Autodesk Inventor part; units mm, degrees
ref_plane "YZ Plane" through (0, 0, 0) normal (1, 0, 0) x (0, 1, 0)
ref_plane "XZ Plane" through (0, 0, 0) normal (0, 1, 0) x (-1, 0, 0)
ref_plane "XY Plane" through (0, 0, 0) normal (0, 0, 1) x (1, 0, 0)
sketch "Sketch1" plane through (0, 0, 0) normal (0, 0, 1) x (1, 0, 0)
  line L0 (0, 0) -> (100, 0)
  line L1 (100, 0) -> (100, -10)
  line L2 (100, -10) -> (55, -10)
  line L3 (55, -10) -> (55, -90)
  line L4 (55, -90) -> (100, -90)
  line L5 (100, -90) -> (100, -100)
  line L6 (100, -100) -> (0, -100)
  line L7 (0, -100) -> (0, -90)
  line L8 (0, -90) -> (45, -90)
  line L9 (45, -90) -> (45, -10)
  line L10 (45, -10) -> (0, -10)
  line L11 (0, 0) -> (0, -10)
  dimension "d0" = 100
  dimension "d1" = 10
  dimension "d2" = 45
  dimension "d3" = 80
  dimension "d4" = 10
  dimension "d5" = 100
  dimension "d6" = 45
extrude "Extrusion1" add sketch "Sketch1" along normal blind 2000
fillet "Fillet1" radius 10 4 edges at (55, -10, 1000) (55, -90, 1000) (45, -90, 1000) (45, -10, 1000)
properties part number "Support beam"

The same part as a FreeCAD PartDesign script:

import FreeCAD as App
import Part
import Sketcher
from FreeCAD import Vector


def edges_at(feature, points):
    """Names of the edges that pass closest to the given points."""
    edges = feature.Shape.Edges
    near = lambda p: min(range(len(edges)), key=lambda i: edges[i].distToShape(Part.Vertex(*p))[0])
    return sorted({f"Edge{near(p) + 1}" for p in points})

doc = App.newDocument("Part")
body = doc.addObject("PartDesign::Body", "Body")

# Sketch on XY plane
sketch1 = body.newObject("Sketcher::SketchObject", "Sketch")
sketch1.AttachmentSupport = (doc.getObject("XY_Plane"), [""])
sketch1.MapMode = "FlatFace"
sketch1.addGeometry([
    Part.LineSegment(Vector(100, 0, 0), Vector(0, 0, 0)),  # 0
    Part.LineSegment(Vector(0, 0, 0), Vector(0, -10, 0)),  # 1
    Part.LineSegment(Vector(0, -10, 0), Vector(45, -10, 0)),  # 2
    Part.LineSegment(Vector(45, -10, 0), Vector(45, -90, 0)),  # 3
    Part.LineSegment(Vector(45, -90, 0), Vector(0, -90, 0)),  # 4
    Part.LineSegment(Vector(0, -90, 0), Vector(0, -100, 0)),  # 5
    Part.LineSegment(Vector(0, -100, 0), Vector(100, -100, 0)),  # 6
    Part.LineSegment(Vector(100, -100, 0), Vector(100, -90, 0)),  # 7
    Part.LineSegment(Vector(100, -90, 0), Vector(55, -90, 0)),  # 8
    Part.LineSegment(Vector(55, -90, 0), Vector(55, -10, 0)),  # 9
    Part.LineSegment(Vector(55, -10, 0), Vector(100, -10, 0)),  # 10
    Part.LineSegment(Vector(100, -10, 0), Vector(100, 0, 0)),  # 11
], False)
sketch1.addConstraint([
    Sketcher.Constraint("Coincident", 0, 2, 1, 1),
    Sketcher.Constraint("Coincident", 1, 2, 2, 1),
    Sketcher.Constraint("Coincident", 2, 2, 3, 1),
    Sketcher.Constraint("Coincident", 3, 2, 4, 1),
    Sketcher.Constraint("Coincident", 4, 2, 5, 1),
    Sketcher.Constraint("Coincident", 5, 2, 6, 1),
    Sketcher.Constraint("Coincident", 6, 2, 7, 1),
    Sketcher.Constraint("Coincident", 7, 2, 8, 1),
    Sketcher.Constraint("Coincident", 8, 2, 9, 1),
    Sketcher.Constraint("Coincident", 9, 2, 10, 1),
    Sketcher.Constraint("Coincident", 10, 2, 11, 1),
    Sketcher.Constraint("Coincident", 11, 2, 0, 1),
    Sketcher.Constraint("Horizontal", 0),
    Sketcher.Constraint("Vertical", 1),
    Sketcher.Constraint("Horizontal", 2),
    Sketcher.Constraint("Vertical", 3),
    Sketcher.Constraint("Horizontal", 4),
    Sketcher.Constraint("Vertical", 5),
    Sketcher.Constraint("Horizontal", 6),
    Sketcher.Constraint("Vertical", 7),
    Sketcher.Constraint("Horizontal", 8),
    Sketcher.Constraint("Vertical", 9),
    Sketcher.Constraint("Horizontal", 10),
    Sketcher.Constraint("Vertical", 11),
    Sketcher.Constraint("Coincident", 0, 2, -1, 1),
    Sketcher.Constraint("PointOnObject", 4, 2, -2),
    Sketcher.Constraint("Horizontal", 4, 2, 7, 2),
    Sketcher.Constraint("Horizontal", 2, 2, 9, 2),
    Sketcher.Constraint("Vertical", 7, 2, 10, 2),
    Sketcher.Constraint("Equal", 4, 8),
    Sketcher.Constraint("Equal", 1, 5),
    Sketcher.Constraint("DistanceX", 0, 2, 0, 1, 100.0),
    Sketcher.Constraint("DistanceX", 2, 1, 2, 2, 45.0),
    Sketcher.Constraint("DistanceY", 1, 2, 1, 1, 10.0),
    Sketcher.Constraint("DistanceY", 3, 2, 3, 1, 80.0),
])
pad1 = body.newObject("PartDesign::Pad", "Pad")
pad1.Profile = sketch1
pad1.Length = 2000
doc.recompute()

fillet = body.newObject("PartDesign::Fillet", "Fillet")
fillet.Base = (pad1, edges_at(pad1, [
    (55, -10, 1000),
    (55, -90, 1000),
    (45, -90, 1000),
    (45, -10, 1000),
]))
fillet.Radius = 10

doc.recompute()
